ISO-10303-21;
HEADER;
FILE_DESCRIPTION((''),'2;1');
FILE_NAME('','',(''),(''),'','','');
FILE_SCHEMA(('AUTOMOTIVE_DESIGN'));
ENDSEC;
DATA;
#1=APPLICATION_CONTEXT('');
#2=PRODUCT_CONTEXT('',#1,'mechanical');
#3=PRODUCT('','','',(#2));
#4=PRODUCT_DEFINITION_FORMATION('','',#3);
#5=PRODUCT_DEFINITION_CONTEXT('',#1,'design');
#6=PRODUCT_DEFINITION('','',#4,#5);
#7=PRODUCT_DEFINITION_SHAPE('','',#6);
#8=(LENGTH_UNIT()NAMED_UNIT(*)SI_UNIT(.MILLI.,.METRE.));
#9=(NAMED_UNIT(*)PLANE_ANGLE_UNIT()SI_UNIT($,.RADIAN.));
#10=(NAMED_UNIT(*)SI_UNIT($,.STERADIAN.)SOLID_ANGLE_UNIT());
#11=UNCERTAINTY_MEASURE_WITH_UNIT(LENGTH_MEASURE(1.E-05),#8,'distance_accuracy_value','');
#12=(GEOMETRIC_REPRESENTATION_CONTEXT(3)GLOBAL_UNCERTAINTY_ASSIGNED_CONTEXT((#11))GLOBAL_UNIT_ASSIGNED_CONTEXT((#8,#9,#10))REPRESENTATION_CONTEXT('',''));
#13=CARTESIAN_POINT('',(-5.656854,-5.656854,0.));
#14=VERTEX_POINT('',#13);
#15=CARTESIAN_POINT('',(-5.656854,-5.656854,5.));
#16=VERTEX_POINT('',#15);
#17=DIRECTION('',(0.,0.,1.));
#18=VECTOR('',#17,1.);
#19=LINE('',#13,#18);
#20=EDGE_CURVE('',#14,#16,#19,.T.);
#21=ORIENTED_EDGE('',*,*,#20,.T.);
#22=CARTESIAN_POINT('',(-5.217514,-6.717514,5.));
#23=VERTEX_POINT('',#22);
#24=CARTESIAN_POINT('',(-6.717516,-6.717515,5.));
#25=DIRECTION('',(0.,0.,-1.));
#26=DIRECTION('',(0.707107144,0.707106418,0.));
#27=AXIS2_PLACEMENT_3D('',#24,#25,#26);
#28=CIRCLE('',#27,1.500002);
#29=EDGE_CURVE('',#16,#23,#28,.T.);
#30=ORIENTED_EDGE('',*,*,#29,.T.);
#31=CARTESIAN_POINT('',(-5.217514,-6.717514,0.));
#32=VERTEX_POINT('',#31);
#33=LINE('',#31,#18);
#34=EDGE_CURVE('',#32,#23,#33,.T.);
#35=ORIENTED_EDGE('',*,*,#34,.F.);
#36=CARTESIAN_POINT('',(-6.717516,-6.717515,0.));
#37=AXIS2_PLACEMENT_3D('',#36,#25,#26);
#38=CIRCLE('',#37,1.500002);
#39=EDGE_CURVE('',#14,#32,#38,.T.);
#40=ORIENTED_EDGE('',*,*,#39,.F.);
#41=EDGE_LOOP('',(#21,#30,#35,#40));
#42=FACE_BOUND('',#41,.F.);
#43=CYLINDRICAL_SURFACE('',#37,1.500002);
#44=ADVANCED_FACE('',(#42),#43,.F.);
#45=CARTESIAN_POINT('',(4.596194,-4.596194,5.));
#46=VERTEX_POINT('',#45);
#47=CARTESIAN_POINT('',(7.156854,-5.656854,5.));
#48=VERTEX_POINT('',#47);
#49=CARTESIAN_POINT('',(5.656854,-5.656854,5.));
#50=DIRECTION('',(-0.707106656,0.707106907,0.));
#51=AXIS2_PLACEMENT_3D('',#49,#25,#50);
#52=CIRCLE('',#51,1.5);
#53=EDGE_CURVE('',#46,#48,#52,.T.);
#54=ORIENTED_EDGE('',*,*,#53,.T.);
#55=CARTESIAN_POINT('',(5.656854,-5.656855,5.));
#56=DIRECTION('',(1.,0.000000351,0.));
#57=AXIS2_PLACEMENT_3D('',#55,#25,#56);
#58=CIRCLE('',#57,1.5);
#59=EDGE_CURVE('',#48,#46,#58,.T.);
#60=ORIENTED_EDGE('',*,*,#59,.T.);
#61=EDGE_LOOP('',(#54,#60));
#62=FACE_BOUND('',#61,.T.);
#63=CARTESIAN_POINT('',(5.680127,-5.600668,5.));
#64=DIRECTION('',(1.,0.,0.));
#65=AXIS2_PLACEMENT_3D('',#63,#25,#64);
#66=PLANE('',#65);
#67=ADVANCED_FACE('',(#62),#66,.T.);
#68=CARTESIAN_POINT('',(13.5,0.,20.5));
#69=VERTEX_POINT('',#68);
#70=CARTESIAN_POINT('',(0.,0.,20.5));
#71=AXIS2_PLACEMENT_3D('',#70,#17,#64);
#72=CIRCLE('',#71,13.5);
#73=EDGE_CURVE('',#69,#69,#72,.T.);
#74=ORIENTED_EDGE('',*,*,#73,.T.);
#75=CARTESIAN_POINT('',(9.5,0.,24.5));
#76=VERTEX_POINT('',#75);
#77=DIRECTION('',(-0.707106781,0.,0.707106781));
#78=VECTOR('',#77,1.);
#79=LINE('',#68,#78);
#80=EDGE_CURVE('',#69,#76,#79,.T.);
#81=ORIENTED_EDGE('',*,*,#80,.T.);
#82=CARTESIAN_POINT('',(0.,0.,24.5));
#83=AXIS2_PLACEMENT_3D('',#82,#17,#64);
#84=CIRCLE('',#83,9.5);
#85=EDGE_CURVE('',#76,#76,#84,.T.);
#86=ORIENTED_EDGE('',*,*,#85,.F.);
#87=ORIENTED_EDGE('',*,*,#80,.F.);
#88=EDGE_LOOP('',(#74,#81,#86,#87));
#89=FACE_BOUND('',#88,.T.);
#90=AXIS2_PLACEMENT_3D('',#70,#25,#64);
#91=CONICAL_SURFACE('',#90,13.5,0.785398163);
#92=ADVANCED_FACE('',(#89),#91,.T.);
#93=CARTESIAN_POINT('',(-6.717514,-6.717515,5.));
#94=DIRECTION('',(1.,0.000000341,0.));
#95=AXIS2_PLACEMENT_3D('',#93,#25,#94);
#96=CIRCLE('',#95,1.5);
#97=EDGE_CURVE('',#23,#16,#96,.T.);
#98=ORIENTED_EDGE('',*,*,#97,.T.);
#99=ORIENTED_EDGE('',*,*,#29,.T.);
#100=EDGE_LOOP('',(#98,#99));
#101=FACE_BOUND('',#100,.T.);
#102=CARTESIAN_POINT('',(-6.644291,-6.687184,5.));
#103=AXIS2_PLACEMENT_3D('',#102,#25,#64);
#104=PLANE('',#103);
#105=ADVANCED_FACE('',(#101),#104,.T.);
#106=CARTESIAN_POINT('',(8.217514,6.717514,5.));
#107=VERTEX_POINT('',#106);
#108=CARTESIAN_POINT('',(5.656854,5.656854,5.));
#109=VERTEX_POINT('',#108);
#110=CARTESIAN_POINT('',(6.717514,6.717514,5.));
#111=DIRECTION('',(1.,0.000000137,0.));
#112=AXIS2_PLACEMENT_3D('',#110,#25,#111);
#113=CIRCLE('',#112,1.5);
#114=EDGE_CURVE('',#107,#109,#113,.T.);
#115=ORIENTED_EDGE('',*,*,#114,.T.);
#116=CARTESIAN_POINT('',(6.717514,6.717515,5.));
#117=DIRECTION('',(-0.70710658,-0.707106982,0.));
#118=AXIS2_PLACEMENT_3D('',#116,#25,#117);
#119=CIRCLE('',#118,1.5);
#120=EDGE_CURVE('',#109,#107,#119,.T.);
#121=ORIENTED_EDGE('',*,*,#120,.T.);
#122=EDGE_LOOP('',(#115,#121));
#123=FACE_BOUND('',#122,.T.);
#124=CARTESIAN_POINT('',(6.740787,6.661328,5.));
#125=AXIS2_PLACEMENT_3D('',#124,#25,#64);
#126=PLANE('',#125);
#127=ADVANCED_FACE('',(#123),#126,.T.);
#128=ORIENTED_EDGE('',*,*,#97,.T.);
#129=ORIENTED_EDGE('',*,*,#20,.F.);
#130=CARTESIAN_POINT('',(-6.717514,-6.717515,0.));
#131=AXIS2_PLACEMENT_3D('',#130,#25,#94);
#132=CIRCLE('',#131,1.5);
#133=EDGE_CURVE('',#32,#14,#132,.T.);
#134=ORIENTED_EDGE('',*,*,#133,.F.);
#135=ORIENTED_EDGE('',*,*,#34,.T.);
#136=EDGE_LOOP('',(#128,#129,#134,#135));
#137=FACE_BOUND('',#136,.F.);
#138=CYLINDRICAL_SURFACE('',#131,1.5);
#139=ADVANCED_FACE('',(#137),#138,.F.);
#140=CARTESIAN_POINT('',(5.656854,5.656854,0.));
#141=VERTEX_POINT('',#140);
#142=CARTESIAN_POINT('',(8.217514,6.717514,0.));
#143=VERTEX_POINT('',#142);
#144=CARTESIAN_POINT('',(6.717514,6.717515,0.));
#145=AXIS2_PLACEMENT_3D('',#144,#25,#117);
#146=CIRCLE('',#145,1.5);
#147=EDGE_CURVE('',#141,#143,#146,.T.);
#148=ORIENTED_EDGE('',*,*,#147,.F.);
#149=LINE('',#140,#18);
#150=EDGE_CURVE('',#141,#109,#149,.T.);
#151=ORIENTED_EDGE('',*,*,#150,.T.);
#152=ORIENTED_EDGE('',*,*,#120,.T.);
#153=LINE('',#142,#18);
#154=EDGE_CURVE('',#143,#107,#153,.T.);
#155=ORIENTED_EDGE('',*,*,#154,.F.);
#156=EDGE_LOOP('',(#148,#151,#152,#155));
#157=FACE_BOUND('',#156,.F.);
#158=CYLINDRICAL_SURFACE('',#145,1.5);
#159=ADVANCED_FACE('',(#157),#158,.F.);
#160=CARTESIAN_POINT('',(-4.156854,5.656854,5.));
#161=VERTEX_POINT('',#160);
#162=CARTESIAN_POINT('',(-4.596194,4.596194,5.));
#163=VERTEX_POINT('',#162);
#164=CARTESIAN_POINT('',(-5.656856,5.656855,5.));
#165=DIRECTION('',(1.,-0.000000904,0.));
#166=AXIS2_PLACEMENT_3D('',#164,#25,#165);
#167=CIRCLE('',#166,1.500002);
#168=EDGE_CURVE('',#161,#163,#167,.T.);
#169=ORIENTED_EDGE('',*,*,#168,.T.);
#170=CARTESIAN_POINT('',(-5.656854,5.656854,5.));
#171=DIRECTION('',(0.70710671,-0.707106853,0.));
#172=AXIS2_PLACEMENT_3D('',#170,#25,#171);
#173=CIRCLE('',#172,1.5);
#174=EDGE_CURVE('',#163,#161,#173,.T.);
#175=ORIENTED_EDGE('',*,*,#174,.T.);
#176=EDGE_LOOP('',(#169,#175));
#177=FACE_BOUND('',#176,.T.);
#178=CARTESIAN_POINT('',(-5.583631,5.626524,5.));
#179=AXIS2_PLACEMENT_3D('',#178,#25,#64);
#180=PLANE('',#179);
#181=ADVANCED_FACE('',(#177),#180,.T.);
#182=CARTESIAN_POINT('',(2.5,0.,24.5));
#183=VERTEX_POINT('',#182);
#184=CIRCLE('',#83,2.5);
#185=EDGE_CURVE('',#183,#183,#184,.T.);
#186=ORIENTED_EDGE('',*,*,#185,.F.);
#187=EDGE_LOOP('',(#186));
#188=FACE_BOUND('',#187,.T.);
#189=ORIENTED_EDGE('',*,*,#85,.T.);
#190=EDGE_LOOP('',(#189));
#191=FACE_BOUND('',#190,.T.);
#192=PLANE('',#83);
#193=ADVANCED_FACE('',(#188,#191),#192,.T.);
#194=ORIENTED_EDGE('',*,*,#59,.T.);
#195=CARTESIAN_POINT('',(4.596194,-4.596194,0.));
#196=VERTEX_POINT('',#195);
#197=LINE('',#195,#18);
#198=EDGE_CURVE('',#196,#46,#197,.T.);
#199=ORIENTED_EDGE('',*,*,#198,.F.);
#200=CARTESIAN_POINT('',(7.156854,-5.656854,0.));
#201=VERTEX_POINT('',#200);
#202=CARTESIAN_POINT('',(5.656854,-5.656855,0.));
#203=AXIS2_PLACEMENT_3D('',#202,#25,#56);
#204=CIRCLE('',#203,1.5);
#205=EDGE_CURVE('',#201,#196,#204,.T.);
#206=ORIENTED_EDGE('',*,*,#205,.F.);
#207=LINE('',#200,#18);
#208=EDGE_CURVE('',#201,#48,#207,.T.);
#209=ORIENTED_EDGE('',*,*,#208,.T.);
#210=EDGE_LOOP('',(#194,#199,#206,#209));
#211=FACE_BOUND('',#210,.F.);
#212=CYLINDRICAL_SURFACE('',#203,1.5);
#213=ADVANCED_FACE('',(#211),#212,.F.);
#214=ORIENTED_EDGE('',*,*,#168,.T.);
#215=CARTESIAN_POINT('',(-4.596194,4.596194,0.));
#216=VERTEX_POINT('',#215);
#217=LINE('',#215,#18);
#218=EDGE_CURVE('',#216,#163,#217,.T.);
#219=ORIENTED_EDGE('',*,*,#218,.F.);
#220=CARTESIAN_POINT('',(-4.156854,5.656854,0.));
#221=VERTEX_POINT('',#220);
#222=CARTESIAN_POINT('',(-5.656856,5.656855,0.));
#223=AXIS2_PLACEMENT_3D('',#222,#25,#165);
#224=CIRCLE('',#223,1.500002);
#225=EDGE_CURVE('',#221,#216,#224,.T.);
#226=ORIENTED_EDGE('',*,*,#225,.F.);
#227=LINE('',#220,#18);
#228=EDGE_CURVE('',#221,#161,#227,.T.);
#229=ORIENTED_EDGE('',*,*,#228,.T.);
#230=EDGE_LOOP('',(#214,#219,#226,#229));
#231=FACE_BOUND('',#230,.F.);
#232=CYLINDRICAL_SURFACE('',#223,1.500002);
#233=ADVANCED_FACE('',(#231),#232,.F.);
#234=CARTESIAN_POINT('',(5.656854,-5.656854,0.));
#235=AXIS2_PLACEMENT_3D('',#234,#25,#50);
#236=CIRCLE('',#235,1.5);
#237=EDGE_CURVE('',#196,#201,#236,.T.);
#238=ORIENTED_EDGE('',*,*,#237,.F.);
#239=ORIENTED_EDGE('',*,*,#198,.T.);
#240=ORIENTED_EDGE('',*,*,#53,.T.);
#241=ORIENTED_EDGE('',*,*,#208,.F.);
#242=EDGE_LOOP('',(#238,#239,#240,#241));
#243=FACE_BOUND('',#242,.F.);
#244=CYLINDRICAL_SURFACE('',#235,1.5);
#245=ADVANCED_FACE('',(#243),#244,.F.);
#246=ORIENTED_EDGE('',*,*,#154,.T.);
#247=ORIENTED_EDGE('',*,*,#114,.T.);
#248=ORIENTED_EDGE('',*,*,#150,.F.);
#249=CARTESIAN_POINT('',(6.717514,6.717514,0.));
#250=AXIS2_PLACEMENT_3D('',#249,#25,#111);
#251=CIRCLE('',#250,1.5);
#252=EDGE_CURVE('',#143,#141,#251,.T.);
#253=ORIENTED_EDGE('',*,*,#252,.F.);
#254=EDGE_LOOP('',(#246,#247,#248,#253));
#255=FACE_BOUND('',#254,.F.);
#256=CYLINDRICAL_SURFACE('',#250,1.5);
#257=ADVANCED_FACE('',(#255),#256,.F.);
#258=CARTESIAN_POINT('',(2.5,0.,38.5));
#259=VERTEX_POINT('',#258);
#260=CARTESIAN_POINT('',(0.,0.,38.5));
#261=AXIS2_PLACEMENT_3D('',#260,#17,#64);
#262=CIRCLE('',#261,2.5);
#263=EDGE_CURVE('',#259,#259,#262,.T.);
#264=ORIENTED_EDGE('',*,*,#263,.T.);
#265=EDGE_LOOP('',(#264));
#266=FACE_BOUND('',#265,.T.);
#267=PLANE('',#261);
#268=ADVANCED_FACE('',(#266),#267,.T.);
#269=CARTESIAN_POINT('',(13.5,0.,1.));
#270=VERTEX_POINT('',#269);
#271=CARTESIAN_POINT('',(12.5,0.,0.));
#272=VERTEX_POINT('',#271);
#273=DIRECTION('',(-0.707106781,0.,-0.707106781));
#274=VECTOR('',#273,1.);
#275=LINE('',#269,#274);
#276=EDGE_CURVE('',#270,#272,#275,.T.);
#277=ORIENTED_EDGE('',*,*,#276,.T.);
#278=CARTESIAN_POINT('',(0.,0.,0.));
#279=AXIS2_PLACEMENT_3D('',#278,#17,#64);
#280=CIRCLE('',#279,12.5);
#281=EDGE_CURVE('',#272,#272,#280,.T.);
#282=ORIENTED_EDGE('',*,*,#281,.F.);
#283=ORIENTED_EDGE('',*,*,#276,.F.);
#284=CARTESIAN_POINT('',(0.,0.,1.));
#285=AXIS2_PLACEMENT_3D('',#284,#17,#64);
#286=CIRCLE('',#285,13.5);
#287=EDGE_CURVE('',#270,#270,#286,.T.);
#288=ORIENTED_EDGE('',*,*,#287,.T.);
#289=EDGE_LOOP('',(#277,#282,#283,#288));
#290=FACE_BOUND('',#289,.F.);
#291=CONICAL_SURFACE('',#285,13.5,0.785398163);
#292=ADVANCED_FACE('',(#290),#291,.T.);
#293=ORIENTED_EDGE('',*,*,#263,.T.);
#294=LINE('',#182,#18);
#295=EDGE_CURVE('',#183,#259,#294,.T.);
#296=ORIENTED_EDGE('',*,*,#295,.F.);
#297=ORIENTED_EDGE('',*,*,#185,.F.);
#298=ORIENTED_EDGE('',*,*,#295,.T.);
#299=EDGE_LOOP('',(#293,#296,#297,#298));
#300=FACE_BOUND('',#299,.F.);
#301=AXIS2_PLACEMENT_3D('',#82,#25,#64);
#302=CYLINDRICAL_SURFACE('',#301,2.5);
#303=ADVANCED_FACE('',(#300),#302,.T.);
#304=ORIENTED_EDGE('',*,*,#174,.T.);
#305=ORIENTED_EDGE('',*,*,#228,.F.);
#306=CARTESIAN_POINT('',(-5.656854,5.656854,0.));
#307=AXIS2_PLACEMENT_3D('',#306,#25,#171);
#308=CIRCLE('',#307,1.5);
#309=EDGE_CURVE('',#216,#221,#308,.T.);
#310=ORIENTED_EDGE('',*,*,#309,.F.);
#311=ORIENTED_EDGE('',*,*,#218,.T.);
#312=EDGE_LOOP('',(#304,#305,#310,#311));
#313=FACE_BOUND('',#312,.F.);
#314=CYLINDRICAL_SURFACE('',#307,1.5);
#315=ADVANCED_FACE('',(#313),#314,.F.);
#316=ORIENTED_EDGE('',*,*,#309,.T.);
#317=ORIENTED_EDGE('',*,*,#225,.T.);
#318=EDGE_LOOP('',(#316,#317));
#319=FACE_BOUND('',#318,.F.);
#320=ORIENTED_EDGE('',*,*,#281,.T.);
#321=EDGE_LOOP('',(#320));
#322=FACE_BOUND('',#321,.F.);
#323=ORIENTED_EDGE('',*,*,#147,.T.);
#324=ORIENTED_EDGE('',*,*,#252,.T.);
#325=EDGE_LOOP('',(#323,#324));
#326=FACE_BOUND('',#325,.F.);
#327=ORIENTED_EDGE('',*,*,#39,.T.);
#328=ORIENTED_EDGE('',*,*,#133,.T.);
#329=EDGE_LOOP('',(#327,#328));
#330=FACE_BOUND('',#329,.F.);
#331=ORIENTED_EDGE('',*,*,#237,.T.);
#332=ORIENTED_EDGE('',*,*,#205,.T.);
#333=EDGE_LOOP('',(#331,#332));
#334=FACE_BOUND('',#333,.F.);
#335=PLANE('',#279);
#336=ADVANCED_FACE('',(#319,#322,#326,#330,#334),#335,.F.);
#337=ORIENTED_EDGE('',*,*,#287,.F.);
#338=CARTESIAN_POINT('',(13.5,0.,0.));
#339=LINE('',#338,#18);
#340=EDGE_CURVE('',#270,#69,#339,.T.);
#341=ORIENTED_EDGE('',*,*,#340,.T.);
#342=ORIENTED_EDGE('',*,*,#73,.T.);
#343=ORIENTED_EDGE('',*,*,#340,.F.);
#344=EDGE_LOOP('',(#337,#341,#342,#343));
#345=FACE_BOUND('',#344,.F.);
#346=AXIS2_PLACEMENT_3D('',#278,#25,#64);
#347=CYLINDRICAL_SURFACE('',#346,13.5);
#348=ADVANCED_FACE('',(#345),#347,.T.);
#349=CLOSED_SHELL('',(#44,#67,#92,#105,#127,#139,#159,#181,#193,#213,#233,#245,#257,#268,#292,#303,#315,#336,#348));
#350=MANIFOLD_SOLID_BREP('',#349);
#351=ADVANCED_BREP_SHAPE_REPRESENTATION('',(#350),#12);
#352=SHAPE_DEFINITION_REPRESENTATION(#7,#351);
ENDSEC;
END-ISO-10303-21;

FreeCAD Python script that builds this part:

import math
import FreeCAD as App
import Part
import Sketcher


def edges_at(feature, points):
    """Names of the edges that pass closest to the given points."""
    edges = feature.Shape.Edges
    near = lambda p: min(range(len(edges)), key=lambda i: edges[i].distToShape(Part.Vertex(*p))[0])
    return sorted({f"Edge{near(p) + 1}" for p in points})

doc = App.newDocument("Part")
body = doc.addObject("PartDesign::Body", "Body")

sketch1 = body.newObject("Sketcher::SketchObject", "Sketch")
sketch1.AttachmentSupport = (doc.getObject("XY_Plane"), [""])
sketch1.MapMode = "FlatFace"
sketch1.addGeometry(Part.Circle(App.Vector(0, 0, 0), App.Vector(0, 0, 1), 14), False)
sketch1.addConstraint([
    Sketcher.Constraint("Coincident", 0, 3, -1, 1),
    Sketcher.Constraint("Diameter", 0, 27.0),
])
pad1 = body.newObject("PartDesign::Pad", "Pad")
pad1.Profile = sketch1
pad1.Length = 24.5

sketch2 = body.newObject("Sketcher::SketchObject", "Sketch001")
sketch2.AttachmentSupport = (doc.getObject("XY_Plane"), [""])
sketch2.MapMode = "FlatFace"
sketch2.AttachmentOffset = App.Placement(App.Vector(0, 0, 24.5), App.Rotation())
sketch2.addGeometry(Part.Circle(App.Vector(0, 0, 0), App.Vector(0, 0, 1), 2.5), False)
sketch2.addConstraint([
    Sketcher.Constraint("Coincident", 0, 3, -1, 1),
    Sketcher.Constraint("Diameter", 0, 5.0),
])
pad2 = body.newObject("PartDesign::Pad", "Pad001")
pad2.Profile = sketch2
pad2.Length = 14

sketch3 = body.newObject("Sketcher::SketchObject", "Sketch002")
sketch3.AttachmentSupport = (doc.getObject("XY_Plane"), [""])
sketch3.MapMode = "FlatFace"
sketch3.addGeometry([
    Part.ArcOfCircle(Part.Circle(App.Vector(6.7, 6.7, 0), App.Vector(0, 0, 1), 1.5), math.radians(-135), math.radians(0)),
    Part.ArcOfCircle(Part.Circle(App.Vector(6.7, 6.7, 0), App.Vector(0, 0, 1), 1.5), math.radians(0), math.radians(225)),
    Part.ArcOfCircle(Part.Circle(App.Vector(-6.7, -6.7, 0), App.Vector(0, 0, 1), 1.5), math.radians(45), math.radians(360)),
    Part.ArcOfCircle(Part.Circle(App.Vector(-6.7, -6.7, 0), App.Vector(0, 0, 1), 1.5), math.radians(0), math.radians(45)),
    Part.ArcOfCircle(Part.Circle(App.Vector(5.7, -5.7, 0), App.Vector(0, 0, 1), 1.5), math.radians(135), math.radians(360)),
    Part.ArcOfCircle(Part.Circle(App.Vector(5.7, -5.7, 0), App.Vector(0, 0, 1), 1.5), math.radians(0), math.radians(135)),
    Part.ArcOfCircle(Part.Circle(App.Vector(-5.7, 5.7, 0), App.Vector(0, 0, 1), 1.5), math.radians(-45), math.radians(0)),
    Part.ArcOfCircle(Part.Circle(App.Vector(-5.7, 5.7, 0), App.Vector(0, 0, 1), 1.5), math.radians(0), math.radians(315)),
], False)
sketch3.addConstraint([
    Sketcher.Constraint("Tangent", 0, 1, 1, 2),
    Sketcher.Constraint("Coincident", 1, 1, 0, 2),
    Sketcher.Constraint("Tangent", 2, 1, 3, 2),
    Sketcher.Constraint("Coincident", 3, 1, 2, 2),
    Sketcher.Constraint("Tangent", 4, 1, 5, 2),
    Sketcher.Constraint("Coincident", 5, 1, 4, 2),
    Sketcher.Constraint("Tangent", 6, 1, 7, 2),
    Sketcher.Constraint("Coincident", 7, 1, 6, 2),
    Sketcher.Constraint("Equal", 1, 2),
    Sketcher.Constraint("Equal", 2, 4),
    Sketcher.Constraint("Equal", 3, 6),
    Sketcher.Constraint("Symmetric", 0, 3, 2, 3, -1, 1),
    Sketcher.Constraint("Symmetric", 4, 3, 6, 3, -1, 1),
    Sketcher.Constraint("Horizontal", 7, 3, 0, 1),
    Sketcher.Constraint("Horizontal", 0, 3, 1, 1),
    Sketcher.Constraint("Horizontal", 5, 3, 2, 1),
    Sketcher.Constraint("Horizontal", 2, 3, 3, 1),
    Sketcher.Constraint("Horizontal", 2, 1, 5, 1),
    Sketcher.Constraint("Horizontal", 0, 1, 7, 1),
    Sketcher.Constraint("Vertical", 5, 3, 0, 1),
    Sketcher.Constraint("Radius", 0, 1.5),
    Sketcher.Constraint("DistanceX", 2, 3, 0, 3, 13.435029),
    Sketcher.Constraint("DistanceY", 2, 3, 0, 3, 13.435028),
    Sketcher.Constraint("DistanceX", 2, 3, 4, 3, 12.374368),
    Sketcher.Constraint("DistanceX", 4, 1, 5, 3, 1.06066),
    Sketcher.Constraint("DistanceX", 7, 3, 6, 1, 1.06066),
])
pocket1 = body.newObject("PartDesign::Pocket", "Pocket")
pocket1.Profile = sketch3
pocket1.Length = 5
pocket1.Reversed = True
doc.recompute()

chamfer = body.newObject("PartDesign::Chamfer", "Chamfer")
chamfer.Base = (pocket1, edges_at(pocket1, [(-13.5, 0, 0)]))
chamfer.Size = 1
doc.recompute()

chamfer2 = body.newObject("PartDesign::Chamfer", "Chamfer001")
chamfer2.Base = (chamfer, edges_at(chamfer, [(-13.5, 0, 24.5)]))
chamfer2.Size = 4

doc.recompute()
